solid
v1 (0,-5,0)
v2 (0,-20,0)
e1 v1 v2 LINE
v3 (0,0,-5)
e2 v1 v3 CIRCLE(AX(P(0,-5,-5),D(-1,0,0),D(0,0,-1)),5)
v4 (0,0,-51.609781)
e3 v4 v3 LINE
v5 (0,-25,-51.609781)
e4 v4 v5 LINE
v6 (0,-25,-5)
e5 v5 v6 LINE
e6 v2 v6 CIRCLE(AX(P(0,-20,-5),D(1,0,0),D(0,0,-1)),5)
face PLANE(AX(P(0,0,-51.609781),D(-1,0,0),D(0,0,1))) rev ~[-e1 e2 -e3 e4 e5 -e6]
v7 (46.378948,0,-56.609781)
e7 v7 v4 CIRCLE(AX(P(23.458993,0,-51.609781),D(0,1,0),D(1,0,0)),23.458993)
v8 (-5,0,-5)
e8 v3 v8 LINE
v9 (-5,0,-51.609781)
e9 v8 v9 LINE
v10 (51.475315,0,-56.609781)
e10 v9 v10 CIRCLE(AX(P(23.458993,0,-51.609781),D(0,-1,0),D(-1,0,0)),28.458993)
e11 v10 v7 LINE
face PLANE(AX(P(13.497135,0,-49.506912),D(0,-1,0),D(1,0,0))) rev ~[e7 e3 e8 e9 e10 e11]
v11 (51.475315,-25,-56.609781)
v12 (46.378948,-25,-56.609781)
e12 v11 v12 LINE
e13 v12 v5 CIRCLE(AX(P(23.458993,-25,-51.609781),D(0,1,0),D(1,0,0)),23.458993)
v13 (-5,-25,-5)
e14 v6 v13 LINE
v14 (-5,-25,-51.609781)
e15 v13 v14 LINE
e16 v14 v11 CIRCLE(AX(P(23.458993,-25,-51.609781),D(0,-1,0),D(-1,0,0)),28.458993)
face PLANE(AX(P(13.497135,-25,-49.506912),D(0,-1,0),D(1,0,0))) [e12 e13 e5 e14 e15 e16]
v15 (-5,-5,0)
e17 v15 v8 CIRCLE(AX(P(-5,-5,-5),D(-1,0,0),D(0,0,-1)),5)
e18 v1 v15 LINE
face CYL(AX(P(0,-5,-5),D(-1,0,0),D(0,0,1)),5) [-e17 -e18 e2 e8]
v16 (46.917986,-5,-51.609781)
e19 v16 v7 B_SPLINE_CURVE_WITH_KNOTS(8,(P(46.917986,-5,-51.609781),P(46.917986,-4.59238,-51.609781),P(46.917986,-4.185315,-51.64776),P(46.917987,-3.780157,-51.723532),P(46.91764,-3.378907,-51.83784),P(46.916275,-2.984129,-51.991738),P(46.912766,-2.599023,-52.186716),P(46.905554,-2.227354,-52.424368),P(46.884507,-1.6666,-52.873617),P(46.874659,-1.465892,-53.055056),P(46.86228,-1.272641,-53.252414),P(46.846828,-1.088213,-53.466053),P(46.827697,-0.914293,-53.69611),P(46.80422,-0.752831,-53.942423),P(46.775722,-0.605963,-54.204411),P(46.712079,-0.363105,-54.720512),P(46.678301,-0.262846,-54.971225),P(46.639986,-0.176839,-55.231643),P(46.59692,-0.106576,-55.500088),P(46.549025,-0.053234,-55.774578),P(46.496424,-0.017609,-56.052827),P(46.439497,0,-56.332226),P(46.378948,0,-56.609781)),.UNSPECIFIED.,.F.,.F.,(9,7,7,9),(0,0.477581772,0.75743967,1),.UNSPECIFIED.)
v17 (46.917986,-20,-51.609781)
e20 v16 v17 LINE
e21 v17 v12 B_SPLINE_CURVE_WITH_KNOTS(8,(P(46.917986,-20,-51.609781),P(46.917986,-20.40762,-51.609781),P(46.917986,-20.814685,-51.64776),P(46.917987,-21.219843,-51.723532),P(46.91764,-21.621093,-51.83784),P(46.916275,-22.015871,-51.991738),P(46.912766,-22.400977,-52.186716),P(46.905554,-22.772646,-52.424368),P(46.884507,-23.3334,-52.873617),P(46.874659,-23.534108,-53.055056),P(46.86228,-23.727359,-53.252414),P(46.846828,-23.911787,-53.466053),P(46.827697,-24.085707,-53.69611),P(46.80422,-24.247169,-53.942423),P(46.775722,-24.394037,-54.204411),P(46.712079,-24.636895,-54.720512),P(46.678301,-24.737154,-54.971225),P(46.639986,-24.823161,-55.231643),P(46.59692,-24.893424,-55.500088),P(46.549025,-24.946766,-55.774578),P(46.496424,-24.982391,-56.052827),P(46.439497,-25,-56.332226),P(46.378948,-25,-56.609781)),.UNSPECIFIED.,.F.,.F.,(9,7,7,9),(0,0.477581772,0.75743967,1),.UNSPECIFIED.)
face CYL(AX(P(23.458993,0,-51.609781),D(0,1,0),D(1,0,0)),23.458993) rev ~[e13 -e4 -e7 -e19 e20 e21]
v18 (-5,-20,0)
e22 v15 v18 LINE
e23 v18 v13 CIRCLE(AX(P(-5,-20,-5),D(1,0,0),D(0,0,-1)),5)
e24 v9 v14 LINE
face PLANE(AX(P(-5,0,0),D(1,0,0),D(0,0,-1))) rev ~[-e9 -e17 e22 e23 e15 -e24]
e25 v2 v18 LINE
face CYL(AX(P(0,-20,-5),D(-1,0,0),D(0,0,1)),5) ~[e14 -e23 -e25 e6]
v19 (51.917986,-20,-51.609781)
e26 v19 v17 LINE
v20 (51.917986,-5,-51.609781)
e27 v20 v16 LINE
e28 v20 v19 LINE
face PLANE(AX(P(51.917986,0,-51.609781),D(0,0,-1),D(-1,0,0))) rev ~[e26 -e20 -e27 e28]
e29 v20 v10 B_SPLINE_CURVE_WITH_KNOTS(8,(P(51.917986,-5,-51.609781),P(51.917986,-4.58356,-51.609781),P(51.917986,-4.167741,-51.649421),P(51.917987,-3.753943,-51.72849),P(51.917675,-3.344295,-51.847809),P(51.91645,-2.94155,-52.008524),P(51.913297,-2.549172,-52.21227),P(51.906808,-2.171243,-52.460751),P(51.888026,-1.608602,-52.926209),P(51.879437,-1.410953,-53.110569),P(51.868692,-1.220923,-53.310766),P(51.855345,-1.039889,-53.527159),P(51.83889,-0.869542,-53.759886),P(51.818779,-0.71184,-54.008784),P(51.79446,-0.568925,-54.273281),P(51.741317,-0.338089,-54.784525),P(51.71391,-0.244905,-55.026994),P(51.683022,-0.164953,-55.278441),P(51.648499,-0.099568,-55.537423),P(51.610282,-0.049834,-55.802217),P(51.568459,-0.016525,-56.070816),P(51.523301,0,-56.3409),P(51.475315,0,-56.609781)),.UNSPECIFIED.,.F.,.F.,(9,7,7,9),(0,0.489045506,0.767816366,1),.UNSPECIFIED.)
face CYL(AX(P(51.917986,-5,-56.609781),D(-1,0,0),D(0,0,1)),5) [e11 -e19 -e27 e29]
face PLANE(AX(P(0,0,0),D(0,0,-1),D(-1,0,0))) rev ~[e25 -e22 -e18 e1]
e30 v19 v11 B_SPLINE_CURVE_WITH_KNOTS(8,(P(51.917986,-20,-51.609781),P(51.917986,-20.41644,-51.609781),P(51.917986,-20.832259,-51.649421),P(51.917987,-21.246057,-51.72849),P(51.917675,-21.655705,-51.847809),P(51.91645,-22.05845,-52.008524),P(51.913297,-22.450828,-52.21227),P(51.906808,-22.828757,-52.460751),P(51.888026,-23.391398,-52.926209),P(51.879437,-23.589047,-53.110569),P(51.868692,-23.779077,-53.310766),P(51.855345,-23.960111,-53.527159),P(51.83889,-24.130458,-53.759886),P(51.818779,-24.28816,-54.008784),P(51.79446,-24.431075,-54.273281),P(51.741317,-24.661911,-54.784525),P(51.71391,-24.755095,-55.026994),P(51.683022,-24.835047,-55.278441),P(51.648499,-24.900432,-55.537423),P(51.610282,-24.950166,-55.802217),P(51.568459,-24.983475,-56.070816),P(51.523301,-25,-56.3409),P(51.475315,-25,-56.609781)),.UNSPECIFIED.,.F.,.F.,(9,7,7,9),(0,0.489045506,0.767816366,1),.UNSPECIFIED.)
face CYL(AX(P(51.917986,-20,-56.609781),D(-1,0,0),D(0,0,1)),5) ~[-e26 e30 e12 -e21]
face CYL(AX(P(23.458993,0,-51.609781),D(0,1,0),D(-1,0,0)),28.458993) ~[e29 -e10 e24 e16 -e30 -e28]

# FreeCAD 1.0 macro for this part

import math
import FreeCAD as App
import Part
import Sketcher
from FreeCAD import Vector


def edges_at(feature, points):
    """Names of the edges that pass closest to the given points."""
    edges = feature.Shape.Edges
    near = lambda p: min(range(len(edges)), key=lambda i: edges[i].distToShape(Part.Vertex(*p))[0])
    return sorted({f"Edge{near(p) + 1}" for p in points})

doc = App.newDocument("Part")
params = doc.addObject("Spreadsheet::Sheet", "Params")
for row, (alias, value) in enumerate([
    ("sketch1_width", "5 mm"),
    ("pad1_length", "25 mm"),
    ("fillet_radius", "5 mm"),
], start=1):
    params.set(f"A{row}", alias)
    params.set(f"B{row}", "=" + value)
    params.setAlias(f"B{row}", alias)

body = doc.addObject("PartDesign::Body", "Body")

# Sketch on XZ plane
sketch1 = body.newObject("Sketcher::SketchObject", "Sketch")
sketch1.AttachmentSupport = (doc.getObject("XZ_Plane"), [""])
sketch1.MapMode = "FlatFace"
sketch1.addGeometry(Part.LineSegment(Vector(0, -51.609781, 0), Vector(0, 0, 0)), False)
sketch1.addGeometry(Part.LineSegment(Vector(0, 0, 0), Vector(-5, 0, 0)), False)
sketch1.addGeometry(Part.LineSegment(Vector(-5, 0, 0), Vector(-5, -51.609781, 0)), False)
sketch1.addGeometry(Part.ArcOfCircle(Part.Circle(Vector(23.458993, -51.609781, 0), Vector(0, 0, 1), 28.458993), math.radians(180), math.radians(360)), False)
sketch1.addGeometry(Part.LineSegment(Vector(51.917986, -51.609781, 0), Vector(46.917986, -51.609781, 0)), False)
sketch1.addGeometry(Part.ArcOfCircle(Part.Circle(Vector(23.458993, -51.609781, 0), Vector(0, 0, 1), 23.458993), math.radians(180), math.radians(360)), False)
sketch1.addConstraint(Sketcher.Constraint("Coincident", 0, 2, 1, 1))
sketch1.addConstraint(Sketcher.Constraint("Coincident", 1, 2, 2, 1))
sketch1.addConstraint(Sketcher.Constraint("Tangent", 2, 2, 3, 1))
sketch1.addConstraint(Sketcher.Constraint("Coincident", 3, 2, 4, 1))
sketch1.addConstraint(Sketcher.Constraint("Coincident", 4, 2, 5, 2))
sketch1.addConstraint(Sketcher.Constraint("Tangent", 5, 1, 0, 1))
sketch1.addConstraint(Sketcher.Constraint("Vertical", 0))
sketch1.addConstraint(Sketcher.Constraint("Horizontal", 1))
sketch1.addConstraint(Sketcher.Constraint("Vertical", 2))
sketch1.addConstraint(Sketcher.Constraint("Horizontal", 4))
sketch1.addConstraint(Sketcher.Constraint("Coincident", 0, 2, -1, 1))
sketch1.addConstraint(Sketcher.Constraint("Coincident", 5, 3, 3, 3))
sketch1.addConstraint(Sketcher.Constraint("Horizontal", 2, 2, 3, 2))
sketch1.addConstraint(Sketcher.Constraint("DistanceX", 1, 2, 1, 1, 5.0))
sketch1.addConstraint(Sketcher.Constraint("Radius", 3, 28.458993))
sketch1.addConstraint(Sketcher.Constraint("DistanceY", 0, 1, 0, 2, 51.609781))
sketch1.setExpression("Constraints[13]", "Params.sketch1_width")
pad1 = body.newObject("PartDesign::Pad", "Pad")
pad1.Profile = sketch1
pad1.setExpression("Length", "Params.pad1_length")
doc.recompute()

fillet = body.newObject("PartDesign::Fillet", "Fillet")
fillet.Base = (pad1, edges_at(pad1, [
    (49.418, -25, -51.61),
    (49.418, 0, -51.61),
    (-2.5, 0, 0),
    (-2.5, -25, 0),
]))
fillet.setExpression("Radius", "Params.fillet_radius")

doc.recompute()
